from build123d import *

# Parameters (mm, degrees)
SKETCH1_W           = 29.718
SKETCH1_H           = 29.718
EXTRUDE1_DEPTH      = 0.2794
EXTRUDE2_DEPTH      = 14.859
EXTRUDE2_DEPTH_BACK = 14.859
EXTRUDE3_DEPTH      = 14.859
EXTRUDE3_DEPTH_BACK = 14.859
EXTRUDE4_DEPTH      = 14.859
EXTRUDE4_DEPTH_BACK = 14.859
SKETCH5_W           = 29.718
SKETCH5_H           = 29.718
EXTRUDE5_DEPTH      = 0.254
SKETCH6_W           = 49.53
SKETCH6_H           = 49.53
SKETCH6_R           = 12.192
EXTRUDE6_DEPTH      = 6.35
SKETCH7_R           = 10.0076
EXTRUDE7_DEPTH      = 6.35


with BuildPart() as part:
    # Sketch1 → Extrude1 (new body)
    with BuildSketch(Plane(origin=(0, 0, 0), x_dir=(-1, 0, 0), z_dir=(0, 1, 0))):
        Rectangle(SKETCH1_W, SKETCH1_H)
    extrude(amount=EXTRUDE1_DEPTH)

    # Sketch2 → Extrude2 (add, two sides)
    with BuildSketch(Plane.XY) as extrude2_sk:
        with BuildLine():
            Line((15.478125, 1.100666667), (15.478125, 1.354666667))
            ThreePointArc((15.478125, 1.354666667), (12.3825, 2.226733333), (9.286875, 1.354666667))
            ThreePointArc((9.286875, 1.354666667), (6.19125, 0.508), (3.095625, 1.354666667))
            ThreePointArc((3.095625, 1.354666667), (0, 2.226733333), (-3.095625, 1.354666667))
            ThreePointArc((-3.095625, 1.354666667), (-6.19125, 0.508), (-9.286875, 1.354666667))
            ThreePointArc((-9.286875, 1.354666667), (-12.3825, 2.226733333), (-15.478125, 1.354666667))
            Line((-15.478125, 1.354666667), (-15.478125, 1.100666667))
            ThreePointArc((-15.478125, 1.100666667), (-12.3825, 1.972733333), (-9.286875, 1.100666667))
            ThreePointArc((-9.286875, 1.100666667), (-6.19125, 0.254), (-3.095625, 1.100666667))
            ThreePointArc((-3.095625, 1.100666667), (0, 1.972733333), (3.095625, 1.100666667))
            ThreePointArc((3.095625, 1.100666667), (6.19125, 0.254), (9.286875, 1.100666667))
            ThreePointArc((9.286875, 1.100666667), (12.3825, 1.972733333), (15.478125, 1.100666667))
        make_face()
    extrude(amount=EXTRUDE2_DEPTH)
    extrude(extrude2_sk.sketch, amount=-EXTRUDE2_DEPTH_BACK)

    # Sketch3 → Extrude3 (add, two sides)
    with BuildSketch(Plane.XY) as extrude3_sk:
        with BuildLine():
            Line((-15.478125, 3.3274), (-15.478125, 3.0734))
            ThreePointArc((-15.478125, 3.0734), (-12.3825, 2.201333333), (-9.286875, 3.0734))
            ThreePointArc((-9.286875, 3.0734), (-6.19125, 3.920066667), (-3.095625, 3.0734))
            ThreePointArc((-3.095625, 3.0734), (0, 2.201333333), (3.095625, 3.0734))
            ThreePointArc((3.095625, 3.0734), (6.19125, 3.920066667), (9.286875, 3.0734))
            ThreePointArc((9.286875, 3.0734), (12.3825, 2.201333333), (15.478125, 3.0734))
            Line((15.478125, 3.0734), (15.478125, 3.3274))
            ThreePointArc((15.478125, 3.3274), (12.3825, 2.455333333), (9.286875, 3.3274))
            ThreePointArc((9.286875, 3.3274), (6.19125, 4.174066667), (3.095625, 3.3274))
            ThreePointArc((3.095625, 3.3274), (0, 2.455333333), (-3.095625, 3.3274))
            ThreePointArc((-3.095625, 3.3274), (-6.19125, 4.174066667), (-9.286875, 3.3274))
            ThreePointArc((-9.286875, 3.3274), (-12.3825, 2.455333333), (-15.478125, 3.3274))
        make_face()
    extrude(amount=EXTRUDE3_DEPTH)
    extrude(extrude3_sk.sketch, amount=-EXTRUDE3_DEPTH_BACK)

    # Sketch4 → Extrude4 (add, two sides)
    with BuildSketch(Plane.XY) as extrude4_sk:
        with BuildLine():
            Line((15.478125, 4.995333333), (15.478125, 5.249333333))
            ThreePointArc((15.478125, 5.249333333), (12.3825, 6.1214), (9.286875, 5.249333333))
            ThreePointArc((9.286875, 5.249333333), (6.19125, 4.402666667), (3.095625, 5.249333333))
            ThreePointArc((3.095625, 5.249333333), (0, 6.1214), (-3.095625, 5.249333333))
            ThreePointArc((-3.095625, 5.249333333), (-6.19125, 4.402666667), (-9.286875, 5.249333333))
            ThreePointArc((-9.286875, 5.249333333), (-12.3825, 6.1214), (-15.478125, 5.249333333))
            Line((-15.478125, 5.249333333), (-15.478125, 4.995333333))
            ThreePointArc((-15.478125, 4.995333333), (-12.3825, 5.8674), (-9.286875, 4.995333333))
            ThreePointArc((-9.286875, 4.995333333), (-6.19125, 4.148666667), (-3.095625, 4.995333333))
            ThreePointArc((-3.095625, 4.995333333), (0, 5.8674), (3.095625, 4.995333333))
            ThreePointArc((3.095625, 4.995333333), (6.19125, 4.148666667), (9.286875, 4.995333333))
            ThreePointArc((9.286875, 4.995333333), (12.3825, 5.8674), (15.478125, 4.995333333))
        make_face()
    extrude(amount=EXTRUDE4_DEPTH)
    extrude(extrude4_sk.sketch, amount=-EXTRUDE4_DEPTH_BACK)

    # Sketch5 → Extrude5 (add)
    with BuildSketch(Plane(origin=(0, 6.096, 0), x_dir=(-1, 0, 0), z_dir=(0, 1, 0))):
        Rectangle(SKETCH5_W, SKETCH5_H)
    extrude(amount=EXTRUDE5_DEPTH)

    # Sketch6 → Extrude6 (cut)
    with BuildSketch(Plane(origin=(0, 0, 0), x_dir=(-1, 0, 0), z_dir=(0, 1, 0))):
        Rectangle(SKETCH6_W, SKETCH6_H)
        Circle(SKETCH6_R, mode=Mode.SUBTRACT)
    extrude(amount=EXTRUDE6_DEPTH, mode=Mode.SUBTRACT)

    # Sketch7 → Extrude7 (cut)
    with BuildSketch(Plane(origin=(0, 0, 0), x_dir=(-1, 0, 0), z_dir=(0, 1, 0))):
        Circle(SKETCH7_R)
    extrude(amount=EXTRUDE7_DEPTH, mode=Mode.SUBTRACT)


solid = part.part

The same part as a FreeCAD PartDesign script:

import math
import FreeCAD as App
import Part
import Sketcher

V = App.Vector
Q = App.Units.Quantity

doc = App.newDocument("Part")
body = doc.addObject("PartDesign::Body", "Body")

# Sketch on XZ plane
sketch1 = doc.addObject("Sketcher::SketchObject", "Sketch")
body.addObject(sketch1)
sketch1.AttachmentSupport = (doc.XZ_Plane, [""])
sketch1.MapMode = "FlatFace"
sketch1.addGeometry([
    Part.LineSegment(V(15, 15, 0), V(15, -15, 0)),
    Part.LineSegment(V(15, -15, 0), V(-15, -15, 0)),
    Part.LineSegment(V(-15, -15, 0), V(-15, 15, 0)),
    Part.LineSegment(V(-15, 15, 0), V(15, 15, 0)),
], False)
sketch1.addConstraint([
    Sketcher.Constraint("Coincident", 0, 2, 1, 1),
    Sketcher.Constraint("Coincident", 1, 2, 2, 1),
    Sketcher.Constraint("Coincident", 2, 2, 3, 1),
    Sketcher.Constraint("Coincident", 3, 2, 0, 1),
    Sketcher.Constraint("Vertical", 0),
    Sketcher.Constraint("Horizontal", 1),
    Sketcher.Constraint("Vertical", 2),
    Sketcher.Constraint("Horizontal", 3),
    Sketcher.Constraint("Symmetric", 0, 2, 2, 2, -1, 1),
    Sketcher.Constraint("Equal", 3, 0),
    Sketcher.Constraint("DistanceX", 1, 2, 1, 1, Q("1.17 in")),
])
pad1 = doc.addObject("PartDesign::Pad", "Pad")
body.addObject(pad1)
pad1.Profile = sketch1
pad1.Length = Q("0.011 in")
pad1.Reversed = True

# Sketch on XY plane
sketch2 = doc.addObject("Sketcher::SketchObject", "Sketch001")
body.addObject(sketch2)
sketch2.AttachmentSupport = (doc.XY_Plane, [""])
sketch2.MapMode = "FlatFace"
sketch2.addGeometry([
    Part.LineSegment(V(15.478125, 1.100667, 0), V(15.478125, 1.354667, 0)),  # 0
    Part.ArcOfCircle(Part.Circle(V(12.3825, -3.703659, 0), V(0, 0, 1), 5.930392), math.radians(58.533946), math.radians(121.466054)),  # 1
    Part.ArcOfCircle(Part.Circle(V(6.19125, 6.590523, 0), V(0, 0, 1), 6.082523), math.radians(-120.593095), math.radians(-59.406905)),  # 2
    Part.ArcOfCircle(Part.Circle(V(0, -3.703659, 0), V(0, 0, 1), 5.930392), math.radians(58.533946), math.radians(121.466054)),  # 3
    Part.ArcOfCircle(Part.Circle(V(-6.19125, 6.590523, 0), V(0, 0, 1), 6.082523), math.radians(-120.593095), math.radians(-59.406905)),  # 4
    Part.ArcOfCircle(Part.Circle(V(-12.3825, -3.703659, 0), V(0, 0, 1), 5.930392), math.radians(58.533946), math.radians(121.466054)),  # 5
    Part.LineSegment(V(-15.478125, 1.354667, 0), V(-15.478125, 1.100667, 0)),  # 6
    Part.ArcOfCircle(Part.Circle(V(-12.3825, -3.957659, 0), V(0, 0, 1), 5.930392), math.radians(58.533946), math.radians(121.466054)),  # 7
    Part.ArcOfCircle(Part.Circle(V(-6.19125, 6.336523, 0), V(0, 0, 1), 6.082523), math.radians(-120.593095), math.radians(-59.406905)),  # 8
    Part.ArcOfCircle(Part.Circle(V(0, -3.957659, 0), V(0, 0, 1), 5.930392), math.radians(58.533946), math.radians(121.466054)),  # 9
    Part.ArcOfCircle(Part.Circle(V(6.19125, 6.336523, 0), V(0, 0, 1), 6.082523), math.radians(-120.593095), math.radians(-59.406905)),  # 10
    Part.ArcOfCircle(Part.Circle(V(12.3825, -3.957659, 0), V(0, 0, 1), 5.930392), math.radians(58.533946), math.radians(121.466054)),  # 11
], False)
sketch2.addConstraint([
    Sketcher.Constraint("Coincident", 0, 2, 1, 1),
    Sketcher.Constraint("Coincident", 1, 2, 2, 2),
    Sketcher.Constraint("Coincident", 2, 1, 3, 1),
    Sketcher.Constraint("Coincident", 3, 2, 4, 2),
    Sketcher.Constraint("Coincident", 4, 1, 5, 1),
    Sketcher.Constraint("Coincident", 5, 2, 6, 1),
    Sketcher.Constraint("Coincident", 6, 2, 7, 2),
    Sketcher.Constraint("Coincident", 7, 1, 8, 1),
    Sketcher.Constraint("Coincident", 8, 2, 9, 2),
    Sketcher.Constraint("Coincident", 9, 1, 10, 1),
    Sketcher.Constraint("Coincident", 10, 2, 11, 2),
    Sketcher.Constraint("Coincident", 11, 1, 0, 1),
    Sketcher.Constraint("Vertical", 0),
    Sketcher.Constraint("Vertical", 6),
    Sketcher.Constraint("Equal", 1, 3),
    Sketcher.Constraint("Equal", 2, 4),
    Sketcher.Constraint("Equal", 3, 5),
    Sketcher.Constraint("Equal", 5, 7),
    Sketcher.Constraint("Equal", 4, 8),
    Sketcher.Constraint("Equal", 7, 9),
    Sketcher.Constraint("Equal", 8, 10),
    Sketcher.Constraint("Equal", 9, 11),
    Sketcher.Constraint("Symmetric", 2, 3, 4, 3, -2),
    Sketcher.Constraint("Symmetric", 1, 3, 5, 3, -2),
    Sketcher.Constraint("Symmetric", 8, 3, 10, 3, -2),
    Sketcher.Constraint("Symmetric", 7, 3, 11, 3, -2),
    Sketcher.Constraint("PointOnObject", 3, 3, -2),
    Sketcher.Constraint("PointOnObject", 9, 3, -2),
    Sketcher.Constraint("Horizontal", 1, 3, 3, 3),
    Sketcher.Constraint("Horizontal", 7, 3, 9, 3),
    Sketcher.Constraint("Horizontal", 0, 2, 1, 2),
    Sketcher.Constraint("Horizontal", 1, 2, 2, 1),
    Sketcher.Constraint("Horizontal", 4, 1, 5, 2),
    Sketcher.Constraint("Horizontal", 6, 2, 7, 1),
    Sketcher.Constraint("Horizontal", 7, 1, 8, 2),
    Sketcher.Constraint("Vertical", 5, 3, 7, 3),
    Sketcher.Constraint("DistanceY", 0, 1, 0, 2, Q("0.01 in")),
    Sketcher.Constraint("DistanceX", -1, 1, 0, 2, Q("0.609375 in")),
    Sketcher.Constraint("DistanceX", 5, 3, 1, 3, Q("0.975 in")),
    Sketcher.Constraint("Radius", 1, 5.930392),
    Sketcher.Constraint("Radius", 2, 6.082523),
    Sketcher.Constraint("DistanceY", 1, 3, -1, 1, 3.703659),
])
pad2 = doc.addObject("PartDesign::Pad", "Pad001")
body.addObject(pad2)
pad2.Profile = sketch2
pad2.Type = "TwoLengths"
pad2.Length = Q("0.585 in")
pad2.Length2 = Q("0.585 in")

# Sketch on XY plane
sketch3 = doc.addObject("Sketcher::SketchObject", "Sketch002")
body.addObject(sketch3)
sketch3.AttachmentSupport = (doc.XY_Plane, [""])
sketch3.MapMode = "FlatFace"
sketch3.addGeometry([
    Part.LineSegment(V(-15.478125, 3.3274, 0), V(-15.478125, 3.0734, 0)),  # 0
    Part.ArcOfCircle(Part.Circle(V(-12.3825, 8.131725, 0), V(0, 0, 1), 5.930392), math.radians(-121.466054), math.radians(-58.533946)),  # 1
    Part.ArcOfCircle(Part.Circle(V(-6.19125, -2.162456, 0), V(0, 0, 1), 6.082523), math.radians(59.406905), math.radians(120.593095)),  # 2
    Part.ArcOfCircle(Part.Circle(V(0, 8.131725, 0), V(0, 0, 1), 5.930392), math.radians(-121.466054), math.radians(-58.533946)),  # 3
    Part.ArcOfCircle(Part.Circle(V(6.19125, -2.162456, 0), V(0, 0, 1), 6.082523), math.radians(59.406905), math.radians(120.593095)),  # 4
    Part.ArcOfCircle(Part.Circle(V(12.3825, 8.131725, 0), V(0, 0, 1), 5.930392), math.radians(-121.466054), math.radians(-58.533946)),  # 5
    Part.LineSegment(V(15.478125, 3.0734, 0), V(15.478125, 3.3274, 0)),  # 6
    Part.ArcOfCircle(Part.Circle(V(12.3825, 8.385725, 0), V(0, 0, 1), 5.930392), math.radians(-121.466054), math.radians(-58.533946)),  # 7
    Part.ArcOfCircle(Part.Circle(V(6.19125, -1.908456, 0), V(0, 0, 1), 6.082523), math.radians(59.406905), math.radians(120.593095)),  # 8
    Part.ArcOfCircle(Part.Circle(V(0, 8.385725, 0), V(0, 0, 1), 5.930392), math.radians(-121.466054), math.radians(-58.533946)),  # 9
    Part.ArcOfCircle(Part.Circle(V(-6.19125, -1.908456, 0), V(0, 0, 1), 6.082523), math.radians(59.406905), math.radians(120.593095)),  # 10
    Part.ArcOfCircle(Part.Circle(V(-12.3825, 8.385725, 0), V(0, 0, 1), 5.930392), math.radians(-121.466054), math.radians(-58.533946)),  # 11
], False)
sketch3.addConstraint([
    Sketcher.Constraint("Coincident", 0, 2, 1, 1),
    Sketcher.Constraint("Coincident", 1, 2, 2, 2),
    Sketcher.Constraint("Coincident", 2, 1, 3, 1),
    Sketcher.Constraint("Coincident", 3, 2, 4, 2),
    Sketcher.Constraint("Coincident", 4, 1, 5, 1),
    Sketcher.Constraint("Coincident", 5, 2, 6, 1),
    Sketcher.Constraint("Coincident", 6, 2, 7, 2),
    Sketcher.Constraint("Coincident", 7, 1, 8, 1),
    Sketcher.Constraint("Coincident", 8, 2, 9, 2),
    Sketcher.Constraint("Coincident", 9, 1, 10, 1),
    Sketcher.Constraint("Coincident", 10, 2, 11, 2),
    Sketcher.Constraint("Coincident", 11, 1, 0, 1),
    Sketcher.Constraint("Vertical", 0),
    Sketcher.Constraint("Vertical", 6),
    Sketcher.Constraint("Equal", 1, 3),
    Sketcher.Constraint("Equal", 2, 4),
    Sketcher.Constraint("Equal", 3, 5),
    Sketcher.Constraint("Equal", 5, 7),
    Sketcher.Constraint("Equal", 4, 8),
    Sketcher.Constraint("Equal", 7, 9),
    Sketcher.Constraint("Equal", 8, 10),
    Sketcher.Constraint("Equal", 9, 11),
    Sketcher.Constraint("Symmetric", 2, 3, 4, 3, -2),
    Sketcher.Constraint("Symmetric", 1, 3, 5, 3, -2),
    Sketcher.Constraint("Symmetric", 8, 3, 10, 3, -2),
    Sketcher.Constraint("Symmetric", 7, 3, 11, 3, -2),
    Sketcher.Constraint("PointOnObject", 3, 3, -2),
    Sketcher.Constraint("PointOnObject", 9, 3, -2),
    Sketcher.Constraint("Horizontal", 1, 3, 3, 3),
    Sketcher.Constraint("Horizontal", 7, 3, 9, 3),
    Sketcher.Constraint("Horizontal", 0, 2, 1, 2),
    Sketcher.Constraint("Horizontal", 1, 2, 2, 1),
    Sketcher.Constraint("Horizontal", 4, 1, 5, 2),
    Sketcher.Constraint("Horizontal", 6, 2, 7, 1),
    Sketcher.Constraint("Horizontal", 7, 1, 8, 2),
    Sketcher.Constraint("Vertical", 5, 3, 7, 3),
    Sketcher.Constraint("DistanceY", 0, 2, 0, 1, Q("0.01 in")),
    Sketcher.Constraint("DistanceX", 0, 2, -1, 1, Q("0.609375 in")),
    Sketcher.Constraint("DistanceY", -1, 1, 0, 2, Q("0.121 in")),
    Sketcher.Constraint("DistanceX", 1, 3, 5, 3, Q("0.975 in")),
    Sketcher.Constraint("Radius", 1, 5.930392),
    Sketcher.Constraint("Radius", 2, 6.082523),
])
pad3 = doc.addObject("PartDesign::Pad", "Pad002")
body.addObject(pad3)
pad3.Profile = sketch3
pad3.Type = "TwoLengths"
pad3.Length = Q("0.585 in")
pad3.Length2 = Q("0.585 in")

# Sketch on XY plane
sketch4 = doc.addObject("Sketcher::SketchObject", "Sketch003")
body.addObject(sketch4)
sketch4.AttachmentSupport = (doc.XY_Plane, [""])
sketch4.MapMode = "FlatFace"
sketch4.addGeometry([
    Part.LineSegment(V(15.478125, 4.995333, 0), V(15.478125, 5.249333, 0)),  # 0
    Part.ArcOfCircle(Part.Circle(V(12.3825, 0.191008, 0), V(0, 0, 1), 5.930392), math.radians(58.533946), math.radians(121.466054)),  # 1
    Part.ArcOfCircle(Part.Circle(V(6.19125, 10.485189, 0), V(0, 0, 1), 6.082523), math.radians(-120.593095), math.radians(-59.406905)),  # 2
    Part.ArcOfCircle(Part.Circle(V(0, 0.191008, 0), V(0, 0, 1), 5.930392), math.radians(58.533946), math.radians(121.466054)),  # 3
    Part.ArcOfCircle(Part.Circle(V(-6.19125, 10.485189, 0), V(0, 0, 1), 6.082523), math.radians(-120.593095), math.radians(-59.406905)),  # 4
    Part.ArcOfCircle(Part.Circle(V(-12.3825, 0.191008, 0), V(0, 0, 1), 5.930392), math.radians(58.533946), math.radians(121.466054)),  # 5
    Part.LineSegment(V(-15.478125, 5.249333, 0), V(-15.478125, 4.995333, 0)),  # 6
    Part.ArcOfCircle(Part.Circle(V(-12.3825, -0.062992, 0), V(0, 0, 1), 5.930392), math.radians(58.533946), math.radians(121.466054)),  # 7
    Part.ArcOfCircle(Part.Circle(V(-6.19125, 10.231189, 0), V(0, 0, 1), 6.082523), math.radians(-120.593095), math.radians(-59.406905)),  # 8
    Part.ArcOfCircle(Part.Circle(V(0, -0.062992, 0), V(0, 0, 1), 5.930392), math.radians(58.533946), math.radians(121.466054)),  # 9
    Part.ArcOfCircle(Part.Circle(V(6.19125, 10.231189, 0), V(0, 0, 1), 6.082523), math.radians(-120.593095), math.radians(-59.406905)),  # 10
    Part.ArcOfCircle(Part.Circle(V(12.3825, -0.062992, 0), V(0, 0, 1), 5.930392), math.radians(58.533946), math.radians(121.466054)),  # 11
], False)
sketch4.addConstraint([
    Sketcher.Constraint("Coincident", 0, 2, 1, 1),
    Sketcher.Constraint("Coincident", 1, 2, 2, 2),
    Sketcher.Constraint("Coincident", 2, 1, 3, 1),
    Sketcher.Constraint("Coincident", 3, 2, 4, 2),
    Sketcher.Constraint("Coincident", 4, 1, 5, 1),
    Sketcher.Constraint("Coincident", 5, 2, 6, 1),
    Sketcher.Constraint("Coincident", 6, 2, 7, 2),
    Sketcher.Constraint("Coincident", 7, 1, 8, 1),
    Sketcher.Constraint("Coincident", 8, 2, 9, 2),
    Sketcher.Constraint("Coincident", 9, 1, 10, 1),
    Sketcher.Constraint("Coincident", 10, 2, 11, 2),
    Sketcher.Constraint("Coincident", 11, 1, 0, 1),
    Sketcher.Constraint("Vertical", 0),
    Sketcher.Constraint("Vertical", 6),
    Sketcher.Constraint("Equal", 1, 3),
    Sketcher.Constraint("Equal", 2, 4),
    Sketcher.Constraint("Equal", 3, 5),
    Sketcher.Constraint("Equal", 5, 7),
    Sketcher.Constraint("Equal", 4, 8),
    Sketcher.Constraint("Equal", 7, 9),
    Sketcher.Constraint("Equal", 8, 10),
    Sketcher.Constraint("Equal", 9, 11),
    Sketcher.Constraint("Symmetric", 2, 3, 4, 3, -2),
    Sketcher.Constraint("Symmetric", 1, 3, 5, 3, -2),
    Sketcher.Constraint("Symmetric", 8, 3, 10, 3, -2),
    Sketcher.Constraint("Symmetric", 7, 3, 11, 3, -2),
    Sketcher.Constraint("PointOnObject", 3, 3, -2),
    Sketcher.Constraint("PointOnObject", 9, 3, -2),
    Sketcher.Constraint("Horizontal", 1, 3, 3, 3),
    Sketcher.Constraint("Horizontal", 7, 3, 9, 3),
    Sketcher.Constraint("Horizontal", 0, 2, 1, 2),
    Sketcher.Constraint("Horizontal", 1, 2, 2, 1),
    Sketcher.Constraint("Horizontal", 4, 1, 5, 2),
    Sketcher.Constraint("Horizontal", 6, 2, 7, 1),
    Sketcher.Constraint("Horizontal", 7, 1, 8, 2),
    Sketcher.Constraint("Vertical", 5, 3, 7, 3),
    Sketcher.Constraint("DistanceY", 0, 1, 0, 2, Q("0.01 in")),
    Sketcher.Constraint("DistanceX", -1, 1, 0, 2, Q("0.609375 in")),
    Sketcher.Constraint("DistanceX", 5, 3, 1, 3, Q("0.975 in")),
    Sketcher.Constraint("Radius", 1, 5.930392),
    Sketcher.Constraint("Radius", 2, 6.082523),
    Sketcher.Constraint("DistanceY", -1, 1, 2, 3, 10.485189),
])
pad4 = doc.addObject("PartDesign::Pad", "Pad003")
body.addObject(pad4)
pad4.Profile = sketch4
pad4.Type = "TwoLengths"
pad4.Length = Q("0.585 in")
pad4.Length2 = Q("0.585 in")

# Sketch on XZ plane
sketch5 = doc.addObject("Sketcher::SketchObject", "Sketch004")
body.addObject(sketch5)
sketch5.AttachmentSupport = (doc.XZ_Plane, [""])
sketch5.MapMode = "FlatFace"
sketch5.AttachmentOffset = App.Placement(V(0, 0, -0.24 * 25.4), App.Rotation())
sketch5.addGeometry([
    Part.LineSegment(V(15, 15, 0), V(15, -15, 0)),
    Part.LineSegment(V(15, -15, 0), V(-15, -15, 0)),
    Part.LineSegment(V(-15, -15, 0), V(-15, 15, 0)),
    Part.LineSegment(V(-15, 15, 0), V(15, 15, 0)),
], False)
sketch5.addConstraint([
    Sketcher.Constraint("Coincident", 0, 2, 1, 1),
    Sketcher.Constraint("Coincident", 1, 2, 2, 1),
    Sketcher.Constraint("Coincident", 2, 2, 3, 1),
    Sketcher.Constraint("Coincident", 3, 2, 0, 1),
    Sketcher.Constraint("Vertical", 0),
    Sketcher.Constraint("Horizontal", 1),
    Sketcher.Constraint("Vertical", 2),
    Sketcher.Constraint("Horizontal", 3),
    Sketcher.Constraint("Symmetric", 0, 2, 2, 2, -1, 1),
    Sketcher.Constraint("Equal", 3, 0),
    Sketcher.Constraint("DistanceX", 1, 2, 1, 1, Q("1.17 in")),
])
pad5 = doc.addObject("PartDesign::Pad", "Pad004")
body.addObject(pad5)
pad5.Profile = sketch5
pad5.Length = Q("0.01 in")
pad5.Reversed = True

# Sketch on XZ plane
sketch6 = doc.addObject("Sketcher::SketchObject", "Sketch005")
body.addObject(sketch6)
sketch6.AttachmentSupport = (doc.XZ_Plane, [""])
sketch6.MapMode = "FlatFace"
sketch6.addGeometry([
    Part.LineSegment(V(25, 25, 0), V(25, -25, 0)),  # 0
    Part.LineSegment(V(25, -25, 0), V(-25, -25, 0)),  # 1
    Part.LineSegment(V(-25, -25, 0), V(-25, 25, 0)),  # 2
    Part.LineSegment(V(-25, 25, 0), V(25, 25, 0)),  # 3
    Part.Circle(V(0, 0, 0), V(0, 0, 1), 12),  # 4
], False)
sketch6.addConstraint([
    Sketcher.Constraint("Coincident", 0, 2, 1, 1),
    Sketcher.Constraint("Coincident", 1, 2, 2, 1),
    Sketcher.Constraint("Coincident", 2, 2, 3, 1),
    Sketcher.Constraint("Coincident", 3, 2, 0, 1),
    Sketcher.Constraint("Vertical", 0),
    Sketcher.Constraint("Horizontal", 1),
    Sketcher.Constraint("Vertical", 2),
    Sketcher.Constraint("Horizontal", 3),
    Sketcher.Constraint("Coincident", 4, 3, -1, 1),
    Sketcher.Constraint("Symmetric", 0, 2, 2, 2, -1, 1),
    Sketcher.Constraint("Equal", 3, 0),
    Sketcher.Constraint("Diameter", 4, Q("0.96 in")),
    Sketcher.Constraint("DistanceX", 1, 2, 1, 1, Q("1.95 in")),
])
pocket1 = doc.addObject("PartDesign::Pocket", "Pocket")
body.addObject(pocket1)
pocket1.Profile = sketch6
pocket1.Length = Q("0.25 in")

# Sketch on XZ plane
sketch7 = doc.addObject("Sketcher::SketchObject", "Sketch006")
body.addObject(sketch7)
sketch7.AttachmentSupport = (doc.XZ_Plane, [""])
sketch7.MapMode = "FlatFace"
sketch7.addGeometry(Part.Circle(V(0, 0, 0), V(0, 0, 1), 10), False)
sketch7.addConstraint([
    Sketcher.Constraint("Coincident", 0, 3, -1, 1),
    Sketcher.Constraint("Diameter", 0, Q("0.788 in")),
])
pocket2 = doc.addObject("PartDesign::Pocket", "Pocket001")
body.addObject(pocket2)
pocket2.Profile = sketch7
pocket2.Length = Q("0.25 in")

doc.recompute()
